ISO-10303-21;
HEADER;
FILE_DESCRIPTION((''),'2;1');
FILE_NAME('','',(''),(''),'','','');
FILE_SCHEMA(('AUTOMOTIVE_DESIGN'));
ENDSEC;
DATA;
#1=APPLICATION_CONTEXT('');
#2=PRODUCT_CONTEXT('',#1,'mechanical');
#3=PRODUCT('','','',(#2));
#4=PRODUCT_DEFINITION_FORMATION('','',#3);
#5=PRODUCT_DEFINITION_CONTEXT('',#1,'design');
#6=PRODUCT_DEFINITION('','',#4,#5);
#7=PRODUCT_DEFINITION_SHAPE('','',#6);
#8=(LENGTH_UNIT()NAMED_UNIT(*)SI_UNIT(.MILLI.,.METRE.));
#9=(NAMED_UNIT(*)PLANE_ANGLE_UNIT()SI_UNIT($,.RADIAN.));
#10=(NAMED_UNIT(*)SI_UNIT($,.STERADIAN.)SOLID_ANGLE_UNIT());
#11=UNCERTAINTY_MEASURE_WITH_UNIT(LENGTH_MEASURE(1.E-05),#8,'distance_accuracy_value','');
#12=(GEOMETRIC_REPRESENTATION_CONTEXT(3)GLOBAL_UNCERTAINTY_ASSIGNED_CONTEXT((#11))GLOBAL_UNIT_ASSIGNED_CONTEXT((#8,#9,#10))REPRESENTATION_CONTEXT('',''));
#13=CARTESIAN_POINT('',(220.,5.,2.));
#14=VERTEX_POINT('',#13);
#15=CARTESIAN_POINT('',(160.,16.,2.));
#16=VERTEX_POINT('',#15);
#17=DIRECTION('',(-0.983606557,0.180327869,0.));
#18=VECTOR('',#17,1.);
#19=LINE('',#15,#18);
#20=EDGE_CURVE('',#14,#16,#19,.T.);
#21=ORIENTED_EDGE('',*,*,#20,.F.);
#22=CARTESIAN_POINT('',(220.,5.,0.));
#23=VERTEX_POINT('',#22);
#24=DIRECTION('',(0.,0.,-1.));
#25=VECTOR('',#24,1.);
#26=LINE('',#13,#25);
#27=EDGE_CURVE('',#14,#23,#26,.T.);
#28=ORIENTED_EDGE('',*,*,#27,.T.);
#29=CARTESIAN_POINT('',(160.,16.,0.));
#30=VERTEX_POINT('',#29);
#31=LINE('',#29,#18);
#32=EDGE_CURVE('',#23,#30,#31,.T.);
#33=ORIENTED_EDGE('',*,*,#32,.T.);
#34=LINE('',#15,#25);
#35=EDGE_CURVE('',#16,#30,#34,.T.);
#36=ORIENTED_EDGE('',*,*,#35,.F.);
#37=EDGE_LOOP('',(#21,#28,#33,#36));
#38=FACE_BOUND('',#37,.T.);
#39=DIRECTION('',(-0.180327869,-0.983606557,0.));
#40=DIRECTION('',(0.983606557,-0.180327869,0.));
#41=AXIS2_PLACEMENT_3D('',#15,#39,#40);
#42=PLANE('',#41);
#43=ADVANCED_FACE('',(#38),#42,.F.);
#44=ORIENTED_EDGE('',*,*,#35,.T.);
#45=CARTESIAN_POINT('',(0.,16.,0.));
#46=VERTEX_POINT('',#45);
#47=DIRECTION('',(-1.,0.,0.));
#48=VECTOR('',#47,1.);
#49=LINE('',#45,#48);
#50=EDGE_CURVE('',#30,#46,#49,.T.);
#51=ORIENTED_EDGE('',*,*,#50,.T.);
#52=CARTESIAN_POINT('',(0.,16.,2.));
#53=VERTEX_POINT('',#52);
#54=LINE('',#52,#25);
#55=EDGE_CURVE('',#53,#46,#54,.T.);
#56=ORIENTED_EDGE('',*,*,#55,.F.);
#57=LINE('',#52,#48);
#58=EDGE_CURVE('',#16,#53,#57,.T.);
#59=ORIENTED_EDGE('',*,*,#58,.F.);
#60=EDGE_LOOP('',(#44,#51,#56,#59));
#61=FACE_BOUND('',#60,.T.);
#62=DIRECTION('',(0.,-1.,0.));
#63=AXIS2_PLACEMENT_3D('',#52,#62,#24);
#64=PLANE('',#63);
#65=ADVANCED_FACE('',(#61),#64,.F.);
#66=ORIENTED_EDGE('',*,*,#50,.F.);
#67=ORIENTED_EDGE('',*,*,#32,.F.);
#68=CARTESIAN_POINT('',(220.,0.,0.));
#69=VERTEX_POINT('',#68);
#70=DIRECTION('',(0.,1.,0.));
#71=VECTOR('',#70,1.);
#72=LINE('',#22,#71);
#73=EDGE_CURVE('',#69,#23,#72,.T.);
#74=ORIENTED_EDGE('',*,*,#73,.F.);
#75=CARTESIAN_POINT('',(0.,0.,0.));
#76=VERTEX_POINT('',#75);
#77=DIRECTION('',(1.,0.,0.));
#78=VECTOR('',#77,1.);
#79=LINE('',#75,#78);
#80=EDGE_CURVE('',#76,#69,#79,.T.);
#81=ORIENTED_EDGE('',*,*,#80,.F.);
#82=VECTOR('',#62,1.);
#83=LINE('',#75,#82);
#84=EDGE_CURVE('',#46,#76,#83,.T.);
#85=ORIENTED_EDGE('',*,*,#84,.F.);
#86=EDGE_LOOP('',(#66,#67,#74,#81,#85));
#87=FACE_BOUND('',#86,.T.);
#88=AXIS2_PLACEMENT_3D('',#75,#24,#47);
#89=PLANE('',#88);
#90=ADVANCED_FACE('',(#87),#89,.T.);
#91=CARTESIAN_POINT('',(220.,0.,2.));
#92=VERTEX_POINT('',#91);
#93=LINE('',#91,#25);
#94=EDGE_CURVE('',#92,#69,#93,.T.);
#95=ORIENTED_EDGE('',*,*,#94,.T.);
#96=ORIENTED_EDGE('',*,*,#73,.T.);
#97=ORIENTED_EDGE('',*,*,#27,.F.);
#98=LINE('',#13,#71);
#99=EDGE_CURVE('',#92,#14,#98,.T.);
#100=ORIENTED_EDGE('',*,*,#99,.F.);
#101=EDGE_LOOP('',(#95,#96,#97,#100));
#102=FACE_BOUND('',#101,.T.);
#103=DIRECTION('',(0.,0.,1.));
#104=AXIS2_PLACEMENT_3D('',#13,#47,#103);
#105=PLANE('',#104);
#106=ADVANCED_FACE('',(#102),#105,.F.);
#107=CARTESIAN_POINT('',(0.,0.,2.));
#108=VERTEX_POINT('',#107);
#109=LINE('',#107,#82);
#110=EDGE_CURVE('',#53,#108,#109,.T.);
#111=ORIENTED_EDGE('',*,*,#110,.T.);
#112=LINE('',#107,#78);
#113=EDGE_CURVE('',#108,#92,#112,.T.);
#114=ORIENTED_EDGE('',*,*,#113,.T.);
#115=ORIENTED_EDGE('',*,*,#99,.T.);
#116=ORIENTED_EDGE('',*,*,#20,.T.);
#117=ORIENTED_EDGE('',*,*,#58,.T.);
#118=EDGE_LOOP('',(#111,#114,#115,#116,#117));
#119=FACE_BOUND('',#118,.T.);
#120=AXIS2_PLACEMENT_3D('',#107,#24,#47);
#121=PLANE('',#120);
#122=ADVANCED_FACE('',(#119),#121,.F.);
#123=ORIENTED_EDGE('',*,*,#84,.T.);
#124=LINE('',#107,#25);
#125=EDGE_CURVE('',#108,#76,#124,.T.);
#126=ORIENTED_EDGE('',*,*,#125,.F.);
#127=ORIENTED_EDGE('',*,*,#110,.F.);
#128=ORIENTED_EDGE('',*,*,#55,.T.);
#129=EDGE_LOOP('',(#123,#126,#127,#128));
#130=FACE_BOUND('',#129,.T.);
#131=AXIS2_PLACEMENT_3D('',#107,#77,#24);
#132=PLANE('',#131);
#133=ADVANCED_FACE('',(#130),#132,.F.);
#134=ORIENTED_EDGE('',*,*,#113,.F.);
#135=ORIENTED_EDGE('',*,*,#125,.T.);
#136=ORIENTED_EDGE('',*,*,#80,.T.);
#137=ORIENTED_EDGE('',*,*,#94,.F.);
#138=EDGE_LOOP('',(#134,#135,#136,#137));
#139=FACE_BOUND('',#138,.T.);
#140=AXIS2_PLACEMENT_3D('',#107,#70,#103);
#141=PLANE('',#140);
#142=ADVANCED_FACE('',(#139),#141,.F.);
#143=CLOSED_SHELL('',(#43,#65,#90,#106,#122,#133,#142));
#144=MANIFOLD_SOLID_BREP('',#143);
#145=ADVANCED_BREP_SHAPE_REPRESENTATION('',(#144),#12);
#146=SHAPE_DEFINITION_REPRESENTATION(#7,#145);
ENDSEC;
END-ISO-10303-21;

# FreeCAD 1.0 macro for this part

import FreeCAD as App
import Part
import Sketcher
Q = App.Units.Quantity


def add_polygon(sketch, points):
    """Adds a closed chain of lines whose ends are joined by coincident constraints."""
    first, n = sketch.GeometryCount, len(points)
    for a, b in zip(points, points[1:] + points[:1]):
        sketch.addGeometry(Part.LineSegment(App.Vector(*a, 0), App.Vector(*b, 0)), False)
    for i in range(n):
        sketch.addConstraint(Sketcher.Constraint("Coincident", first + i, 2, first + (i + 1) % n, 1))

doc = App.newDocument("Part")
body = doc.addObject("PartDesign::Body", "Body")

sketch1 = doc.addObject("Sketcher::SketchObject", "Sketch")
body.addObject(sketch1)
sketch1.AttachmentSupport = (doc.XY_Plane, [""])
sketch1.MapMode = "FlatFace"
add_polygon(sketch1, [(0, 0), (220, 0), (220, 5), (160, 16), (0, 16)])
sketch1.addConstraint(Sketcher.Constraint("Horizontal", 0))
sketch1.addConstraint(Sketcher.Constraint("Vertical", 1))
sketch1.addConstraint(Sketcher.Constraint("Horizontal", 3))
sketch1.addConstraint(Sketcher.Constraint("Vertical", 4))
sketch1.addConstraint(Sketcher.Constraint("Coincident", 4, 2, -1, 1))
sketch1.addConstraint(Sketcher.Constraint("DistanceX", 0, 1, 0, 2, Q("220 mm")))
sketch1.addConstraint(Sketcher.Constraint("DistanceX", 3, 2, 3, 1, Q("160 mm")))
sketch1.addConstraint(Sketcher.Constraint("DistanceY", 1, 1, 1, 2, Q("5 mm")))
sketch1.addConstraint(Sketcher.Constraint("DistanceY", 4, 2, 4, 1, Q("16 mm")))
pad1 = doc.addObject("PartDesign::Pad", "Pad")
body.addObject(pad1)
pad1.Profile = sketch1
pad1.Length = 2

doc.recompute()
